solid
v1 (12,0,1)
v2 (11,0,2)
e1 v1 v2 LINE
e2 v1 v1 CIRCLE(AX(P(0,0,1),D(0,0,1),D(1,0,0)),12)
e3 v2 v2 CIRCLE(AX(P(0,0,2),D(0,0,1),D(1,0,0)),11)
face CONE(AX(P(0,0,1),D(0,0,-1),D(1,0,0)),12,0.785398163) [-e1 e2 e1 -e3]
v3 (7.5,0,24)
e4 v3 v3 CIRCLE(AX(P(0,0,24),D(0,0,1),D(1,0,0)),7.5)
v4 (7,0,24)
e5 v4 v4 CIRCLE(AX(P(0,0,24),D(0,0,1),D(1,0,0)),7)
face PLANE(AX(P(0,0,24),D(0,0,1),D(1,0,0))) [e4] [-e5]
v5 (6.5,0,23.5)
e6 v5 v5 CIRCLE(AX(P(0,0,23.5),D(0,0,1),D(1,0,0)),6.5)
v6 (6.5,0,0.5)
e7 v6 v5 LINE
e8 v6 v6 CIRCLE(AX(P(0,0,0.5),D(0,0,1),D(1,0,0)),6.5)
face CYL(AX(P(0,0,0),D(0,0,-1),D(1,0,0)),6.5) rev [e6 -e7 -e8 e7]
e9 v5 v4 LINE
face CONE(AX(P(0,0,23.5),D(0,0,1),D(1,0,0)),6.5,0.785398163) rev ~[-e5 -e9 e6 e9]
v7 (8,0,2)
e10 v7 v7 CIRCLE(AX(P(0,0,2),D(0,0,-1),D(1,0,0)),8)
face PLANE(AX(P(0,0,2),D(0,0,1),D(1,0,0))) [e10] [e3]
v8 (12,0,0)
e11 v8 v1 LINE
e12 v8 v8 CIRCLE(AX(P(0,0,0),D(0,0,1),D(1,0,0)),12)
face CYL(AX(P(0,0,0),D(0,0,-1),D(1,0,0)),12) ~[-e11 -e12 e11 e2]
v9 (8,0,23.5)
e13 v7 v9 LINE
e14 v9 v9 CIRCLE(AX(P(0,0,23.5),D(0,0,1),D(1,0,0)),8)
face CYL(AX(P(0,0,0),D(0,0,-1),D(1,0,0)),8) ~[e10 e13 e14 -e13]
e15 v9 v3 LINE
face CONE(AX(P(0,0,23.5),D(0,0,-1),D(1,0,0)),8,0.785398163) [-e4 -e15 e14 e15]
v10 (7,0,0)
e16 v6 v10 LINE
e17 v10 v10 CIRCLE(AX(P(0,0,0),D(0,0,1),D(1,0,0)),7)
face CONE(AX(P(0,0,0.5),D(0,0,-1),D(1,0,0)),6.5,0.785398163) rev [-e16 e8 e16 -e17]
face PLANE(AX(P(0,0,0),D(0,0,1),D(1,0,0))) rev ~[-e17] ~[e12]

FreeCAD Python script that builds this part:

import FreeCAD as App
import Part
import Sketcher

V = App.Vector


def edges_at(feature, points):
    """Names of the edges that pass closest to the given points."""
    edges = feature.Shape.Edges
    near = lambda p: min(range(len(edges)), key=lambda i: edges[i].distToShape(Part.Vertex(*p))[0])
    return sorted({f"Edge{near(p) + 1}" for p in points})

doc = App.newDocument("Part")
body = doc.addObject("PartDesign::Body", "Body")

# Sketch on XY plane
sketch1 = body.newObject("Sketcher::SketchObject", "Sketch")
sketch1.AttachmentSupport = (doc.getObject("XY_Plane"), [""])
sketch1.MapMode = "FlatFace"
sketch1.addGeometry([
    Part.Circle(V(0, 0, 0), V(0, 0, 1), 8),
    Part.Circle(V(0, 0, 0), V(0, 0, 1), 6),
], False)
sketch1.addConstraint([
    Sketcher.Constraint("Coincident", 0, 3, -1, 1),
    Sketcher.Constraint("Coincident", 1, 3, -1, 1),
    Sketcher.Constraint("Diameter", 0, 16.0),
    Sketcher.Constraint("Diameter", 1, 13.0),
])
pad1 = body.newObject("PartDesign::Pad", "Pad")
pad1.Profile = sketch1
pad1.Length = 24
doc.recompute()

chamfer = body.newObject("PartDesign::Chamfer", "Chamfer")
chamfer.Base = (pad1, edges_at(pad1, [(-6.5, 0, 24)]))
chamfer.Size = 0.5

# Sketch on XY plane
sketch2 = body.newObject("Sketcher::SketchObject", "Sketch001")
sketch2.AttachmentSupport = (doc.getObject("XY_Plane"), [""])
sketch2.MapMode = "FlatFace"
sketch2.addGeometry([
    Part.Circle(V(0, 0, 0), V(0, 0, 1), 12),
    Part.Circle(V(0, 0, 0), V(0, 0, 1), 6),
], False)
sketch2.addConstraint([
    Sketcher.Constraint("Coincident", 0, 3, -1, 1),
    Sketcher.Constraint("Coincident", 1, 3, -1, 1),
    Sketcher.Constraint("Diameter", 0, 24.0),
    Sketcher.Constraint("Diameter", 1, 13.0),
])
pad2 = body.newObject("PartDesign::Pad", "Pad001")
pad2.Profile = sketch2
pad2.Length = 2
doc.recompute()

chamfer2 = body.newObject("PartDesign::Chamfer", "Chamfer001")
chamfer2.Base = (pad2, edges_at(pad2, [(-6.5, 0, 0)]))
chamfer2.Size = 0.5
doc.recompute()

chamfer3 = body.newObject("PartDesign::Chamfer", "Chamfer002")
chamfer3.Base = (chamfer2, edges_at(chamfer2, [(-12, 0, 2)]))
chamfer3.Size = 1
doc.recompute()

chamfer4 = body.newObject("PartDesign::Chamfer", "Chamfer003")
chamfer4.Base = (chamfer3, edges_at(chamfer3, [(-8, 0, 24)]))
chamfer4.Size = 0.5

doc.recompute()
